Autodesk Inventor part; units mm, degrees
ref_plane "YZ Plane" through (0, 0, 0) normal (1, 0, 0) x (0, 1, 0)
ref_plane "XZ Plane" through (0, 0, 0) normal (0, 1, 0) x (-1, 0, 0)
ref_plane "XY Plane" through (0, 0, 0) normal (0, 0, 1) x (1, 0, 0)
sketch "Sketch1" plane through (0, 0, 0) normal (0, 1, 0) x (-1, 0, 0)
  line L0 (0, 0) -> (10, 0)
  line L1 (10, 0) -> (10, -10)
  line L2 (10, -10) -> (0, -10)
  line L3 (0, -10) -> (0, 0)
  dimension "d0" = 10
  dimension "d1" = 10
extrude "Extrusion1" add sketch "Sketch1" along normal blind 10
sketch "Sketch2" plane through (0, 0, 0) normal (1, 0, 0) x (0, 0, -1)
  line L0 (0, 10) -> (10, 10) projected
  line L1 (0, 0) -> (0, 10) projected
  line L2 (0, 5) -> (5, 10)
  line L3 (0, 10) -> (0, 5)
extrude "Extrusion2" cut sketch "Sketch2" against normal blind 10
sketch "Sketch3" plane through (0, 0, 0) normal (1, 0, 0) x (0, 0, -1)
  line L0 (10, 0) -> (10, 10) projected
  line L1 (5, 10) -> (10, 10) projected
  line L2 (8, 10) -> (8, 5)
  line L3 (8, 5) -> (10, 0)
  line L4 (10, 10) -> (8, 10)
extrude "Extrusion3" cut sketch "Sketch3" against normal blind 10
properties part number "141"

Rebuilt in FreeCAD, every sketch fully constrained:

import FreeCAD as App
import Part
import Sketcher

V = App.Vector
Q = App.Units.Quantity

doc = App.newDocument("Part")
body = doc.addObject("PartDesign::Body", "Body")

sketch1 = body.newObject("Sketcher::SketchObject", "Sketch")
sketch1.AttachmentSupport = (doc.getObject("XZ_Plane"), [""])
sketch1.MapMode = "FlatFace"
sketch1.addGeometry(Part.LineSegment(V(-10, 0, 0), V(0, 0, 0)), False)
sketch1.addGeometry(Part.LineSegment(V(0, 0, 0), V(0, -10, 0)), False)
sketch1.addGeometry(Part.LineSegment(V(0, -10, 0), V(-10, -10, 0)), False)
sketch1.addGeometry(Part.LineSegment(V(-10, -10, 0), V(-10, 0, 0)), False)
sketch1.addConstraint(Sketcher.Constraint("Coincident", 0, 2, 1, 1))
sketch1.addConstraint(Sketcher.Constraint("Coincident", 1, 2, 2, 1))
sketch1.addConstraint(Sketcher.Constraint("Coincident", 2, 2, 3, 1))
sketch1.addConstraint(Sketcher.Constraint("Coincident", 3, 2, 0, 1))
sketch1.addConstraint(Sketcher.Constraint("Horizontal", 0))
sketch1.addConstraint(Sketcher.Constraint("Vertical", 1))
sketch1.addConstraint(Sketcher.Constraint("Horizontal", 2))
sketch1.addConstraint(Sketcher.Constraint("Vertical", 3))
sketch1.addConstraint(Sketcher.Constraint("Coincident", 0, 2, -1, 1))
sketch1.addConstraint(Sketcher.Constraint("Equal", 2, 1))
sketch1.addConstraint(Sketcher.Constraint("DistanceX", 0, 1, 0, 2, Q("10 mm")))
pad1 = body.newObject("PartDesign::Pad", "Pad")
pad1.Profile = sketch1
pad1.Length = 10
pad1.Reversed = True

sketch2 = body.newObject("Sketcher::SketchObject", "Sketch001")
sketch2.AttachmentSupport = (doc.getObject("YZ_Plane"), [""])
sketch2.MapMode = "FlatFace"
sketch2.addGeometry(Part.LineSegment(V(10, -5, 0), V(10, 0, 0)), False)
sketch2.addGeometry(Part.LineSegment(V(10, 0, 0), V(5, 0, 0)), False)
sketch2.addGeometry(Part.LineSegment(V(5, 0, 0), V(10, -5, 0)), False)
sketch2.addConstraint(Sketcher.Constraint("Coincident", 0, 2, 1, 1))
sketch2.addConstraint(Sketcher.Constraint("Coincident", 1, 2, 2, 1))
sketch2.addConstraint(Sketcher.Constraint("Coincident", 2, 2, 0, 1))
sketch2.addConstraint(Sketcher.Constraint("Vertical", 0))
sketch2.addConstraint(Sketcher.Constraint("Horizontal", 1))
sketch2.addConstraint(Sketcher.Constraint("PointOnObject", 0, 2, -1))
sketch2.addConstraint(Sketcher.Constraint("Equal", 1, 0))
sketch2.addConstraint(Sketcher.Constraint("DistanceX", 1, 2, 1, 1, Q("5 mm")))
sketch2.addConstraint(Sketcher.Constraint("DistanceX", -1, 1, 0, 2, Q("10 mm")))
pocket1 = body.newObject("PartDesign::Pocket", "Pocket")
pocket1.Profile = sketch2
pocket1.Length = 10

sketch3 = body.newObject("Sketcher::SketchObject", "Sketch002")
sketch3.AttachmentSupport = (doc.getObject("YZ_Plane"), [""])
sketch3.MapMode = "FlatFace"
sketch3.addGeometry(Part.LineSegment(V(5, -8, 0), V(0, -10, 0)), False)
sketch3.addGeometry(Part.LineSegment(V(0, -10, 0), V(10, -10, 0)), False)
sketch3.addGeometry(Part.LineSegment(V(10, -10, 0), V(10, -8, 0)), False)
sketch3.addGeometry(Part.LineSegment(V(10, -8, 0), V(5, -8, 0)), False)
sketch3.addConstraint(Sketcher.Constraint("Coincident", 0, 2, 1, 1))
sketch3.addConstraint(Sketcher.Constraint("Coincident", 1, 2, 2, 1))
sketch3.addConstraint(Sketcher.Constraint("Coincident", 2, 2, 3, 1))
sketch3.addConstraint(Sketcher.Constraint("Coincident", 3, 2, 0, 1))
sketch3.addConstraint(Sketcher.Constraint("Horizontal", 1))
sketch3.addConstraint(Sketcher.Constraint("Vertical", 2))
sketch3.addConstraint(Sketcher.Constraint("Horizontal", 3))
sketch3.addConstraint(Sketcher.Constraint("PointOnObject", 0, 2, -2))
sketch3.addConstraint(Sketcher.Constraint("DistanceX", 1, 1, 1, 2, Q("10 mm")))
sketch3.addConstraint(Sketcher.Constraint("DistanceX", 3, 2, 3, 1, Q("5 mm")))
sketch3.addConstraint(Sketcher.Constraint("DistanceY", 2, 1, 2, 2, Q("2 mm")))
sketch3.addConstraint(Sketcher.Constraint("DistanceY", 0, 2, -1, 1, Q("10 mm")))
pocket2 = body.newObject("PartDesign::Pocket", "Pocket001")
pocket2.Profile = sketch3
pocket2.Length = 10

doc.recompute()
